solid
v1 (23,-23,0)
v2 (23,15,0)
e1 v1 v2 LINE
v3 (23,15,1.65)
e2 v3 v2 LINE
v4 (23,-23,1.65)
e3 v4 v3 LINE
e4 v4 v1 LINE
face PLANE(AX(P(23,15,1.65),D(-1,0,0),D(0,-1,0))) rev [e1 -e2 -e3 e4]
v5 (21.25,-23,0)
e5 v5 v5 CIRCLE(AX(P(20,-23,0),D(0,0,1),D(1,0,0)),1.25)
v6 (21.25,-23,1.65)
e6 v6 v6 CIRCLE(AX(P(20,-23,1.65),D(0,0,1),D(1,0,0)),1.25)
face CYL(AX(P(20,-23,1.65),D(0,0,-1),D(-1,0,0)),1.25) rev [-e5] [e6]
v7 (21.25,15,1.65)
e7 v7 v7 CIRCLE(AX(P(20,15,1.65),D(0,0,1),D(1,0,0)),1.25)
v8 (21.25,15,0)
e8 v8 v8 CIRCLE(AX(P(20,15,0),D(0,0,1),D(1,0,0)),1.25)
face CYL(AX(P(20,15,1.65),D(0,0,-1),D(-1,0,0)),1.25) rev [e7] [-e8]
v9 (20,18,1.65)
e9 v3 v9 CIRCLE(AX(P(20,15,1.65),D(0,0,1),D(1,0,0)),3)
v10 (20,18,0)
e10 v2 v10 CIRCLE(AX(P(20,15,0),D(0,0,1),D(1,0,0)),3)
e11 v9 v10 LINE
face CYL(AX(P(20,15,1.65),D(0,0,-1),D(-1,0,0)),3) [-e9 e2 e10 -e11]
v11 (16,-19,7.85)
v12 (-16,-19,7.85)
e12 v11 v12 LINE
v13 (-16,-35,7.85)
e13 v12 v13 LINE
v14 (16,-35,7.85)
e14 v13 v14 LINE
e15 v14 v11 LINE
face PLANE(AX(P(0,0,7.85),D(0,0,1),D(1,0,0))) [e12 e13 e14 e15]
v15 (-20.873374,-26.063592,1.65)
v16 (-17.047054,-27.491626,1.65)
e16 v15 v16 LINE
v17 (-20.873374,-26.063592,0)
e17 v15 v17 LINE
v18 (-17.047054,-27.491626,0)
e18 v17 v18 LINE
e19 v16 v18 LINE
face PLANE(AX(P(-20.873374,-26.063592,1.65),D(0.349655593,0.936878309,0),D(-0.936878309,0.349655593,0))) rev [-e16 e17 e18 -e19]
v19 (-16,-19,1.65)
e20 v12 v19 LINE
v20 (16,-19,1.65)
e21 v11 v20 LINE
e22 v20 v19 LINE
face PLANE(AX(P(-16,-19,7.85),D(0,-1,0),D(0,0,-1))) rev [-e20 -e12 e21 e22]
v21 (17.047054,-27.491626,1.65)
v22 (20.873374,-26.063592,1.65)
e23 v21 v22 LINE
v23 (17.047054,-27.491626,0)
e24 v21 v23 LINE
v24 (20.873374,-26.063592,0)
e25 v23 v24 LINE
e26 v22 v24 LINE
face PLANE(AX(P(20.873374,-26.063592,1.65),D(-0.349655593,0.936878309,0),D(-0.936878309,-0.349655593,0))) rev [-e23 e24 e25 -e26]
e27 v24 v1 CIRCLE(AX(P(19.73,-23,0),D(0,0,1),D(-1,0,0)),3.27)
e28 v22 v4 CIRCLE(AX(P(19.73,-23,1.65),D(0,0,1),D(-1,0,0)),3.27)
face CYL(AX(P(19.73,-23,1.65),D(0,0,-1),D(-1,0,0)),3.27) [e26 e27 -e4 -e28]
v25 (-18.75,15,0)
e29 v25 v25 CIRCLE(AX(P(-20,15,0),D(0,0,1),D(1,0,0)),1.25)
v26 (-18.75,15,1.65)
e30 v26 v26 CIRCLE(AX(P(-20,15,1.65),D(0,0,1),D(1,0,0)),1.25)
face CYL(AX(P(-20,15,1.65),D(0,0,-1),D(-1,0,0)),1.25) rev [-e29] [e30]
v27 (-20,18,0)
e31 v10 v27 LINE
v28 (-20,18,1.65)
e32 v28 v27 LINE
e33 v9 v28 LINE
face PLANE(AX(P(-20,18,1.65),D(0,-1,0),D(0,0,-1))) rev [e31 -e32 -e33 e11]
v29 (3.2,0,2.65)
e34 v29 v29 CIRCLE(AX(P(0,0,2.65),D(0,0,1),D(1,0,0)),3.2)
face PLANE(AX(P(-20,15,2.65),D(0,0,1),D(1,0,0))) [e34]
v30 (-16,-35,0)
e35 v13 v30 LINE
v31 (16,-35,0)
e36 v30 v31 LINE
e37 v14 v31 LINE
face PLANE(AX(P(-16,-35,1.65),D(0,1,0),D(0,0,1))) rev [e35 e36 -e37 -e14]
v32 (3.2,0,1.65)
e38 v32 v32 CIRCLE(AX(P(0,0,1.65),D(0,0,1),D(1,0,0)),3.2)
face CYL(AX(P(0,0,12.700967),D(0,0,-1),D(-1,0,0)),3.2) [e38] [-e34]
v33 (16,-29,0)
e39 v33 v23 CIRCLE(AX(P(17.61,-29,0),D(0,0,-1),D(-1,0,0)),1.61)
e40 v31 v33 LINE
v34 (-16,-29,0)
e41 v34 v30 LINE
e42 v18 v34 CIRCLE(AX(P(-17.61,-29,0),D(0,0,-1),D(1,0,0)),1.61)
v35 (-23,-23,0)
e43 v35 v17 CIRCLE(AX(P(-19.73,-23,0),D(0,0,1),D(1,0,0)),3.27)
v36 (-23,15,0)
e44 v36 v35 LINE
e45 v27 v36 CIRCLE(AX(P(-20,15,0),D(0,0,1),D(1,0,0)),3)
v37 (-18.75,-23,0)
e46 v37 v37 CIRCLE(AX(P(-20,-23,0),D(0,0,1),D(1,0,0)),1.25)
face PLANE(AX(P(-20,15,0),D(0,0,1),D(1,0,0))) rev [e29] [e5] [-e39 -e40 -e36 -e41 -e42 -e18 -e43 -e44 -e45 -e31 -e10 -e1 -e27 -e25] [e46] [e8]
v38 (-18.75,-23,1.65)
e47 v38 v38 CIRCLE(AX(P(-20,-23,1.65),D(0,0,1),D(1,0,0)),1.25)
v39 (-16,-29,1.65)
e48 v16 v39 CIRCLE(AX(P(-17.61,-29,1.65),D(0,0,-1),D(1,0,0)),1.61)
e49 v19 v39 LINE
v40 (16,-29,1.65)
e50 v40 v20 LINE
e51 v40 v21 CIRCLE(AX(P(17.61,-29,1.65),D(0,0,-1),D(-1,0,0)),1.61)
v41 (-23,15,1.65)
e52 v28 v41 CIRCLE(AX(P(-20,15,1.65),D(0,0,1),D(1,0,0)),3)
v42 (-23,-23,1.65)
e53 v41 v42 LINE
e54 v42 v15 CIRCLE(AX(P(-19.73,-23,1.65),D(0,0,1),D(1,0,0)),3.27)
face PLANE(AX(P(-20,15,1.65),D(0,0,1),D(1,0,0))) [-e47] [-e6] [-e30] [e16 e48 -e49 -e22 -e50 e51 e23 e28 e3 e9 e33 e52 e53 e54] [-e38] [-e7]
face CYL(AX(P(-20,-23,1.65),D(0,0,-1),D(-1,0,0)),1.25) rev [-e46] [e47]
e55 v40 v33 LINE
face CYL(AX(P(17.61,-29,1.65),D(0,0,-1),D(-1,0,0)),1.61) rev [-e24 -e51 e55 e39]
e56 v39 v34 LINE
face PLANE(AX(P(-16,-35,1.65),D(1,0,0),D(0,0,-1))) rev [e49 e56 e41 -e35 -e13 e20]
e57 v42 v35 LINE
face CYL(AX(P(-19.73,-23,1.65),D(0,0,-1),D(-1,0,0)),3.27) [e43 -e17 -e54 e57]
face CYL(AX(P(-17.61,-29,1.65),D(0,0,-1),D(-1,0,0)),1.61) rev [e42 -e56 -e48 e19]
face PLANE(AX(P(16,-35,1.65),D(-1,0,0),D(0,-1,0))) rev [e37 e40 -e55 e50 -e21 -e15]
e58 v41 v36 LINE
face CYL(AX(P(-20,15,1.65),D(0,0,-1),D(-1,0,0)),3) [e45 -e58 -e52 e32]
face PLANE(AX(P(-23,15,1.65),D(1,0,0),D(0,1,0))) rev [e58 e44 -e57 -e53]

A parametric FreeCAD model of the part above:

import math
import FreeCAD as App
import Part
import Sketcher
Q = App.Units.Quantity

doc = App.newDocument("Part")
body = doc.addObject("PartDesign::Body", "Body")

# Sketch on XY plane
sketch1 = body.newObject("Sketcher::SketchObject", "Sketch")
sketch1.AttachmentSupport = (doc.getObject("XY_Plane"), [""])
sketch1.MapMode = "FlatFace"
sketch1.addGeometry([
    Part.LineSegment(App.Vector(20, 18, 0), App.Vector(-20, 18, 0)),  # 0
    Part.ArcOfCircle(Part.Circle(App.Vector(-20, 15, 0), App.Vector(0, 0, 1), 3), math.radians(90), math.radians(180)),  # 1
    Part.LineSegment(App.Vector(-23, 15, 0), App.Vector(-23, -23, 0)),  # 2
    Part.ArcOfCircle(Part.Circle(App.Vector(-19.73, -23, 0), App.Vector(0, 0, 1), 3.27), math.radians(-180), math.radians(-110.466251)),  # 3
    Part.LineSegment(App.Vector(-20.873374, -26.063592, 0), App.Vector(-17.047054, -27.491626, 0)),  # 4
    Part.ArcOfCircle(Part.Circle(App.Vector(-17.61, -29, 0), App.Vector(0, 0, 1), 1.61), math.radians(0), math.radians(69.533749)),  # 5
    Part.LineSegment(App.Vector(-16, -29, 0), App.Vector(-16, -35, 0)),  # 6
    Part.LineSegment(App.Vector(-16, -35, 0), App.Vector(16, -35, 0)),  # 7
    Part.LineSegment(App.Vector(16, -35, 0), App.Vector(16, -29, 0)),  # 8
    Part.ArcOfCircle(Part.Circle(App.Vector(17.61, -29, 0), App.Vector(0, 0, 1), 1.61), math.radians(110.466251), math.radians(180)),  # 9
    Part.LineSegment(App.Vector(17.047054, -27.491626, 0), App.Vector(20.873374, -26.063592, 0)),  # 10
    Part.ArcOfCircle(Part.Circle(App.Vector(19.73, -23, 0), App.Vector(0, 0, 1), 3.27), math.radians(-69.533749), math.radians(0)),  # 11
    Part.LineSegment(App.Vector(23, -23, 0), App.Vector(23, 15, 0)),  # 12
    Part.ArcOfCircle(Part.Circle(App.Vector(20, 15, 0), App.Vector(0, 0, 1), 3), math.radians(0), math.radians(90)),  # 13
    Part.Circle(App.Vector(20, -23, 0), App.Vector(0, 0, 1), 1.25),  # 14
    Part.Circle(App.Vector(-20, -23, 0), App.Vector(0, 0, 1), 1.25),  # 15
    Part.Circle(App.Vector(20, 15, 0), App.Vector(0, 0, 1), 1.25),  # 16
    Part.Circle(App.Vector(0, 0, 0), App.Vector(0, 0, 1), 3.2),  # 17
    Part.Circle(App.Vector(-20, 15, 0), App.Vector(0, 0, 1), 1.25),  # 18
], False)
sketch1.addConstraint([
    Sketcher.Constraint("Tangent", 0, 2, 1, 1),
    Sketcher.Constraint("Tangent", 1, 2, 2, 1),
    Sketcher.Constraint("Tangent", 2, 2, 3, 1),
    Sketcher.Constraint("Tangent", 3, 2, 4, 1),
    Sketcher.Constraint("Tangent", 4, 2, 5, 2),
    Sketcher.Constraint("Tangent", 5, 1, 6, 1),
    Sketcher.Constraint("Coincident", 6, 2, 7, 1),
    Sketcher.Constraint("Coincident", 7, 2, 8, 1),
    Sketcher.Constraint("Tangent", 8, 2, 9, 2),
    Sketcher.Constraint("Tangent", 9, 1, 10, 1),
    Sketcher.Constraint("Tangent", 10, 2, 11, 1),
    Sketcher.Constraint("Tangent", 11, 2, 12, 1),
    Sketcher.Constraint("Tangent", 12, 2, 13, 1),
    Sketcher.Constraint("Tangent", 13, 2, 0, 1),
    Sketcher.Constraint("Horizontal", 0),
    Sketcher.Constraint("Vertical", 2),
    Sketcher.Constraint("Vertical", 6),
    Sketcher.Constraint("Horizontal", 7),
    Sketcher.Constraint("Vertical", 8),
    Sketcher.Constraint("Vertical", 12),
    Sketcher.Constraint("Coincident", 17, 3, -1, 1),
    Sketcher.Constraint("Coincident", 16, 3, 13, 3),
    Sketcher.Constraint("Coincident", 18, 3, 1, 3),
    Sketcher.Constraint("Equal", 5, 9),
    Sketcher.Constraint("Equal", 3, 11),
    Sketcher.Constraint("Equal", 1, 13),
    Sketcher.Constraint("Equal", 14, 15),
    Sketcher.Constraint("Equal", 15, 16),
    Sketcher.Constraint("Equal", 16, 18),
    Sketcher.Constraint("Symmetric", 5, 3, 9, 3, -2),
    Sketcher.Constraint("Symmetric", 3, 3, 11, 3, -2),
    Sketcher.Constraint("Symmetric", 14, 3, 15, 3, -2),
    Sketcher.Constraint("Horizontal", 11, 3, 14, 3),
    Sketcher.Constraint("Vertical", 13, 3, 14, 3),
    Sketcher.Constraint("Radius", 1, Q("3 mm")),
    Sketcher.Constraint("Diameter", 14, Q("2.5 mm")),
    Sketcher.Constraint("Diameter", 17, Q("6.4 mm")),
    Sketcher.Constraint("DistanceX", 0, 2, 0, 1, Q("40 mm")),
    Sketcher.Constraint("DistanceX", 7, 1, 7, 2, Q("32 mm")),
    Sketcher.Constraint("DistanceY", 2, 2, 2, 1, Q("38 mm")),
    Sketcher.Constraint("DistanceY", 6, 2, 6, 1, Q("6 mm")),
    Sketcher.Constraint("Radius", 3, Q("3.27 mm")),
    Sketcher.Constraint("Radius", 5, Q("1.61 mm")),
    Sketcher.Constraint("DistanceY", -1, 1, 1, 3, Q("15 mm")),
    Sketcher.Constraint("DistanceY", 5, 3, -1, 1, Q("29 mm")),
])
pad1 = body.newObject("PartDesign::Pad", "Pad")
pad1.Profile = sketch1
pad1.Length = 1.65

# Sketch on XY plane
sketch2 = body.newObject("Sketcher::SketchObject", "Sketch001")
sketch2.AttachmentSupport = (doc.getObject("XY_Plane"), [""])
sketch2.MapMode = "FlatFace"
sketch2.AttachmentOffset = App.Placement(App.Vector(0, 0, 1.65), App.Rotation())
sketch2.addGeometry([
    Part.LineSegment(App.Vector(-16, -19, 0), App.Vector(-16, -35, 0)),
    Part.LineSegment(App.Vector(-16, -35, 0), App.Vector(16, -35, 0)),
    Part.LineSegment(App.Vector(16, -35, 0), App.Vector(16, -19, 0)),
    Part.LineSegment(App.Vector(16, -19, 0), App.Vector(-16, -19, 0)),
], False)
sketch2.addConstraint([
    Sketcher.Constraint("Coincident", 0, 2, 1, 1),
    Sketcher.Constraint("Coincident", 1, 2, 2, 1),
    Sketcher.Constraint("Coincident", 2, 2, 3, 1),
    Sketcher.Constraint("Coincident", 3, 2, 0, 1),
    Sketcher.Constraint("Vertical", 0),
    Sketcher.Constraint("Horizontal", 1),
    Sketcher.Constraint("Vertical", 2),
    Sketcher.Constraint("Horizontal", 3),
    Sketcher.Constraint("DistanceX", 1, 1, 1, 2, Q("32 mm")),
    Sketcher.Constraint("DistanceY", 0, 2, 0, 1, Q("16 mm")),
    Sketcher.Constraint("DistanceX", 0, 2, -1, 1, Q("16 mm")),
    Sketcher.Constraint("DistanceY", 0, 2, -1, 1, Q("35 mm")),
])
pad2 = body.newObject("PartDesign::Pad", "Pad001")
pad2.Profile = sketch2
pad2.Length = 6.2

# Sketch on XY plane
sketch3 = body.newObject("Sketcher::SketchObject", "Sketch002")
sketch3.AttachmentSupport = (doc.getObject("XY_Plane"), [""])
sketch3.MapMode = "FlatFace"
sketch3.addGeometry(Part.Circle(App.Vector(0, 0, 0), App.Vector(0, 0, 1), 3.2), False)
sketch3.addConstraint([
    Sketcher.Constraint("Coincident", 0, 3, -1, 1),
    Sketcher.Constraint("Diameter", 0, Q("6.4 mm")),
])
pad3 = body.newObject("PartDesign::Pad", "Pad002")
pad3.Profile = sketch3
pad3.Length = 2.65

doc.recompute()
